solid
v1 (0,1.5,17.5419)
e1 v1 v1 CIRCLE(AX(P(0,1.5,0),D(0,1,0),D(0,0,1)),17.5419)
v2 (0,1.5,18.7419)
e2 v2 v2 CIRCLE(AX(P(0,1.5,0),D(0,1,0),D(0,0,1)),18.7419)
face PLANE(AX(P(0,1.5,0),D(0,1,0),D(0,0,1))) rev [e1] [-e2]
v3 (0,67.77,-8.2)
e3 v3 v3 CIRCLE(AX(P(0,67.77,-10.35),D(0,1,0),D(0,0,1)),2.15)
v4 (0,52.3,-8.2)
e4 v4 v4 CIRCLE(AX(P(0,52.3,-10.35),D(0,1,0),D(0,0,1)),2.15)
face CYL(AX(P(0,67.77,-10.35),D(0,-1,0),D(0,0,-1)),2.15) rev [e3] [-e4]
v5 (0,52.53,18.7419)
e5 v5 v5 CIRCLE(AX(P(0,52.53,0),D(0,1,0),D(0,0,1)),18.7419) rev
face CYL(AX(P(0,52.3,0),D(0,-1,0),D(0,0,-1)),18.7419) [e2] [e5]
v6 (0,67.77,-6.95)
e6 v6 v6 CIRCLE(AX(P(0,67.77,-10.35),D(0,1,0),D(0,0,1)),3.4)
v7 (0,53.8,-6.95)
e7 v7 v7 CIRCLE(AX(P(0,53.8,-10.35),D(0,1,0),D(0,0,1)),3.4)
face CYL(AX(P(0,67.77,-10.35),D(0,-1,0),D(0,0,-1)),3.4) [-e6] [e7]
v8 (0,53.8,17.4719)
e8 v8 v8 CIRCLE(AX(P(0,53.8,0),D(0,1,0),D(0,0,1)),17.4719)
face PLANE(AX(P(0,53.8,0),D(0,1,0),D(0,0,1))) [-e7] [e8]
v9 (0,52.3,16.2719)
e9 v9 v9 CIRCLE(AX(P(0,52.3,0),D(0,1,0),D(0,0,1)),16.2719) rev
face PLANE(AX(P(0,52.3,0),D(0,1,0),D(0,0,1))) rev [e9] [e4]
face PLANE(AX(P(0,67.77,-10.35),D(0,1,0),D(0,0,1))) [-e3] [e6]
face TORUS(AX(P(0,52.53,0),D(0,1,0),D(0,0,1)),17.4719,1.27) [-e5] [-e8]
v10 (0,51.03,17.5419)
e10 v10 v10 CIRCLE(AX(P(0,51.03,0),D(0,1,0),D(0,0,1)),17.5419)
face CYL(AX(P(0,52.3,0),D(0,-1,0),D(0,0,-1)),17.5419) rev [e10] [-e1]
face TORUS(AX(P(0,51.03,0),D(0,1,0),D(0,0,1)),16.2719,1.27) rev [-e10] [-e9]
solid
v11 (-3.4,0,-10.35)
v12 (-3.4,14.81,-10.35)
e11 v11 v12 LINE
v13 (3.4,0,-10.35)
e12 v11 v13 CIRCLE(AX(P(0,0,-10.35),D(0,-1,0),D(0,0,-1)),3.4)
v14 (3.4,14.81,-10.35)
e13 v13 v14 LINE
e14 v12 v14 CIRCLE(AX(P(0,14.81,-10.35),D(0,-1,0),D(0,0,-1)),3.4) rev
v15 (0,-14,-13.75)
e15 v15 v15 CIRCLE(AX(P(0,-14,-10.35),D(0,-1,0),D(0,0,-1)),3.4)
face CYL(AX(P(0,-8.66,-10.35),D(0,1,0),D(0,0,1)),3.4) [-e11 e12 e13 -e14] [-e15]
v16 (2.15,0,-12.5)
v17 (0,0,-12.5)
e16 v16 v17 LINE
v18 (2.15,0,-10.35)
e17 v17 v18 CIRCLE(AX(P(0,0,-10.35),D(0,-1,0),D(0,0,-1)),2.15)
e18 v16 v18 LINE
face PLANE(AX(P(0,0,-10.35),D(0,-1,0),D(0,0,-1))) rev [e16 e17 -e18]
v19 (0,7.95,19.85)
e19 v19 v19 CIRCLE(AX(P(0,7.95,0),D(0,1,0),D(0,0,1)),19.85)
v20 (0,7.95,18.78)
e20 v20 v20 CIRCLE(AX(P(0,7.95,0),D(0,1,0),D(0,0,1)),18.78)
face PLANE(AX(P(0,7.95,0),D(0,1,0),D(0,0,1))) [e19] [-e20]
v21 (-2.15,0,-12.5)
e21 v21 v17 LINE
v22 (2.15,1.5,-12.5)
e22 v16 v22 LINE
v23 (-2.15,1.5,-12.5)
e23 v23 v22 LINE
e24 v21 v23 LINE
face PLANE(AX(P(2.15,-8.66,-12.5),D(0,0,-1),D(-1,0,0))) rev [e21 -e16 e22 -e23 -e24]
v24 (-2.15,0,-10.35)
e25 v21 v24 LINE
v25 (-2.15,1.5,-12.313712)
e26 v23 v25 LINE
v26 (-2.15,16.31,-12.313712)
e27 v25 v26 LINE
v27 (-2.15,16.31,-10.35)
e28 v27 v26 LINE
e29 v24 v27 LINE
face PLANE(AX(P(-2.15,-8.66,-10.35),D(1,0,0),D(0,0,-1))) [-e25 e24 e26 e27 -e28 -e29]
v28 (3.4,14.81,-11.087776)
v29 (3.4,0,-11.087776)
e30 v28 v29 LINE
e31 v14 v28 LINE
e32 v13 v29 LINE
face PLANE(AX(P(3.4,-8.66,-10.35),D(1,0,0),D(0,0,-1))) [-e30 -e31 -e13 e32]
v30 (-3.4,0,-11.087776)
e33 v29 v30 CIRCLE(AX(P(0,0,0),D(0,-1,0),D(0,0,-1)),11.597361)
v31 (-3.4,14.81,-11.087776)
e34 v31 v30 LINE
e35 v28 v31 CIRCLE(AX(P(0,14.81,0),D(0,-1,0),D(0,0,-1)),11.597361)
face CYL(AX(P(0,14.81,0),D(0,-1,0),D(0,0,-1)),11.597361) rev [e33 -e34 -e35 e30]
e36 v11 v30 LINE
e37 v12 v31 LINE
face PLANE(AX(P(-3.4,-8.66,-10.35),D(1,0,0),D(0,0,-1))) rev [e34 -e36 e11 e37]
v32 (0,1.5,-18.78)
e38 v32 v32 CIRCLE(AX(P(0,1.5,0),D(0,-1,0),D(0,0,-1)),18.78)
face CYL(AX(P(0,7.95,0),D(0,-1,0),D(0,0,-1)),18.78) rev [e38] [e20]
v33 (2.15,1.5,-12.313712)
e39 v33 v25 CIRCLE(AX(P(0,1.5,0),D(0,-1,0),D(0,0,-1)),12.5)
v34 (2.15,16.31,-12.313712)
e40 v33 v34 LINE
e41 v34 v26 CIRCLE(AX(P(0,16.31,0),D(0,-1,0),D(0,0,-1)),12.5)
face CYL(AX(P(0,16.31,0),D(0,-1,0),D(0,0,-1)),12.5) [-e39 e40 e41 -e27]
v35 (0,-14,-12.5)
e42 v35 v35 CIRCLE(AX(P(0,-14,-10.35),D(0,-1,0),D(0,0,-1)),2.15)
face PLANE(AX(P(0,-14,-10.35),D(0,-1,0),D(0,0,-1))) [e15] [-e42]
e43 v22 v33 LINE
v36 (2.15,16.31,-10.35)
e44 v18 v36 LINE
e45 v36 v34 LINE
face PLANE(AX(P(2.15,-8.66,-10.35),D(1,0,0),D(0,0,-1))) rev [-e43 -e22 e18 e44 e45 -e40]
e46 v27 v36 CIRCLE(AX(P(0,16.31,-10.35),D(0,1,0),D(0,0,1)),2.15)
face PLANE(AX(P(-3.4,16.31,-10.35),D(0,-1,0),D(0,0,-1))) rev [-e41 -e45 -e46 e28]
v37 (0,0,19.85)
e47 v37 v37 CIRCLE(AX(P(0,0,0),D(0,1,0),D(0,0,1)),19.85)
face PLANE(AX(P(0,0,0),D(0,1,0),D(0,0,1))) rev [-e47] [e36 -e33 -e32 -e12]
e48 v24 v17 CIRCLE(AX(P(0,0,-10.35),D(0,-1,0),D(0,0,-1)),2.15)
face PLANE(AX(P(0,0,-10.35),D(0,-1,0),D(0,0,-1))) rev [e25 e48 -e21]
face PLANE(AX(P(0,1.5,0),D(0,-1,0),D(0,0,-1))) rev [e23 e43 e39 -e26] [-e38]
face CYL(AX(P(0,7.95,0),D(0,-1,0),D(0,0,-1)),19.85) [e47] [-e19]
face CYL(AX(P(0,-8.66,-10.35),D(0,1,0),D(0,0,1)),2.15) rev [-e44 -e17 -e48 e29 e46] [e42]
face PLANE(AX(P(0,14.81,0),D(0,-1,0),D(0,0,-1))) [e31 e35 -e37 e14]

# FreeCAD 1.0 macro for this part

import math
import FreeCAD as App
import Part
import Sketcher

V = App.Vector
Q = App.Units.Quantity


def edges_at(feature, points):
    """Names of the edges that pass closest to the given points."""
    edges = feature.Shape.Edges
    near = lambda p: min(range(len(edges)), key=lambda i: edges[i].distToShape(Part.Vertex(*p))[0])
    return sorted({f"Edge{near(p) + 1}" for p in points})

doc = App.newDocument("Part")
body = doc.addObject("PartDesign::Body", "Body")

sketch1 = body.newObject("Sketcher::SketchObject", "Sketch")
sketch1.AttachmentSupport = (doc.getObject("XZ_Plane"), [""])
sketch1.MapMode = "FlatFace"
sketch1.addGeometry([
    Part.Circle(V(0, 0, 0), V(0, 0, 1), 20),
    Part.Circle(V(0, 0, 0), V(0, 0, 1), 19),
], False)
sketch1.addConstraint([
    Sketcher.Constraint("Coincident", 0, 3, -1, 1),
    Sketcher.Constraint("Coincident", 1, 3, -1, 1),
    Sketcher.Constraint("Diameter", 0, Q("39.7 mm")),
    Sketcher.Constraint("Diameter", 1, Q("37.56 mm")),
])
pad1 = body.newObject("PartDesign::Pad", "Pad")
pad1.Profile = sketch1
pad1.Length = 7.95
pad1.Reversed = True

sketch2 = body.newObject("Sketcher::SketchObject", "Sketch001")
sketch2.AttachmentSupport = (doc.getObject("XZ_Plane"), [""])
sketch2.MapMode = "FlatFace"
sketch2.addGeometry(Part.Circle(V(0, 0, 0), V(0, 0, 1), 19), False)
sketch2.addConstraint([
    Sketcher.Constraint("Coincident", 0, 3, -1, 1),
    Sketcher.Constraint("Diameter", 0, Q("37.56 mm")),
])
pad2 = body.newObject("PartDesign::Pad", "Pad001")
pad2.Profile = sketch2
pad2.Length = 1.5
pad2.Reversed = True
body2 = doc.addObject("PartDesign::Body", "Body001")

sketch3 = body2.newObject("Sketcher::SketchObject", "Sketch002")
sketch3.AttachmentSupport = (doc.getObject("XZ_Plane001"), [""])
sketch3.MapMode = "FlatFace"
sketch3.addGeometry(Part.Circle(V(0, 0, 0), V(0, 0, 1), 12), False)
sketch3.addConstraint([
    Sketcher.Constraint("Coincident", 0, 3, -1, 1),
    Sketcher.Constraint("Diameter", 0, Q("25 mm")),
])
pad3 = body2.newObject("PartDesign::Pad", "Pad002")
pad3.Profile = sketch3
pad3.Length = 16.31
pad3.Reversed = True
body3 = doc.addObject("PartDesign::Body", "Body002")

sketch4 = body3.newObject("Sketcher::SketchObject", "Sketch003")
sketch4.AttachmentSupport = (doc.getObject("XZ_Plane002"), [""])
sketch4.MapMode = "FlatFace"
sketch4.AttachmentOffset = App.Placement(V(0, 0, -16.31), App.Rotation())
sketch4.addGeometry([
    Part.ArcOfCircle(Part.Circle(V(0, -10.3, 0), V(0, 0, 1), 2.1), math.radians(0), math.radians(180)),
    Part.LineSegment(V(2.1, -10.3, 0), V(2.1, -12.5, 0)),
    Part.LineSegment(V(2.1, -12.5, 0), V(-2.1, -12.5, 0)),
    Part.LineSegment(V(-2.1, -12.5, 0), V(-2.1, -10.3, 0)),
], False)
sketch4.addConstraint([
    Sketcher.Constraint("Tangent", 0, 1, 1, 1),
    Sketcher.Constraint("Coincident", 1, 2, 2, 1),
    Sketcher.Constraint("Coincident", 2, 2, 3, 1),
    Sketcher.Constraint("Tangent", 3, 2, 0, 2),
    Sketcher.Constraint("Vertical", 1),
    Sketcher.Constraint("Horizontal", 2),
    Sketcher.Constraint("Vertical", 3),
    Sketcher.Constraint("PointOnObject", 0, 3, -2),
    Sketcher.Constraint("Radius", 0, Q("2.15 mm")),
    Sketcher.Constraint("DistanceY", 1, 2, 1, 1, Q("2.15 mm")),
    Sketcher.Constraint("DistanceY", 1, 2, -1, 1, Q("12.5 mm")),
])
pad4 = body3.newObject("PartDesign::Pad", "Pad003")
pad4.Profile = sketch4
pad4.Length = 16.31
doc.recompute()

body4 = doc.addObject("PartDesign::Body", "Body003")
body4.BaseFeature = body3
boolean = body.newObject("PartDesign::Boolean", "Boolean")
boolean.Type = "Cut"
boolean.addObjects([body4])
doc.recompute()

boolean2 = body2.newObject("PartDesign::Boolean", "Boolean001")
boolean2.Type = "Cut"
boolean2.addObjects([body3])
body5 = doc.addObject("PartDesign::Body", "Body004")

sketch5 = body5.newObject("Sketcher::SketchObject", "Sketch004")
sketch5.AttachmentSupport = (doc.getObject("XZ_Plane004"), [""])
sketch5.MapMode = "FlatFace"
sketch5.addGeometry(Part.Circle(V(0, 0, 0), V(0, 0, 1), 12), False)
sketch5.addConstraint([
    Sketcher.Constraint("Coincident", 0, 3, -1, 1),
    Sketcher.Constraint("Diameter", 0, Q("23.194722 mm")),
])
pad5 = body5.newObject("PartDesign::Pad", "Pad004")
pad5.Profile = sketch5
pad5.Length = 14.81
pad5.Reversed = True
doc.recompute()

body6 = doc.addObject("PartDesign::Body", "Body005")
body6.BaseFeature = body5
boolean3 = body.newObject("PartDesign::Boolean", "Boolean002")
boolean3.Type = "Cut"
boolean3.addObjects([body6])
doc.recompute()

boolean4 = body2.newObject("PartDesign::Boolean", "Boolean003")
boolean4.Type = "Cut"
boolean4.addObjects([body5])
doc.recompute()

boolean5 = body.newObject("PartDesign::Boolean", "Boolean004")
boolean5.Type = "Fuse"
boolean5.addObjects([body2])

sketch6 = body.newObject("Sketcher::SketchObject", "Sketch005")
sketch6.AttachmentSupport = (doc.getObject("XZ_Plane"), [""])
sketch6.MapMode = "FlatFace"
sketch6.AttachmentOffset = App.Placement(V(0, 0, -16.31), App.Rotation())
sketch6.addGeometry([
    Part.ArcOfCircle(Part.Circle(V(0, -10.3, 0), V(0, 0, 1), 3.4), math.radians(0), math.radians(180)),
    Part.LineSegment(V(3.4, -10.3, 0), V(3.4, -13.8, 0)),
    Part.LineSegment(V(3.4, -13.8, 0), V(-3.4, -13.8, 0)),
    Part.LineSegment(V(-3.4, -13.8, 0), V(-3.4, -10.3, 0)),
], False)
sketch6.addConstraint([
    Sketcher.Constraint("Tangent", 0, 1, 1, 1),
    Sketcher.Constraint("Coincident", 1, 2, 2, 1),
    Sketcher.Constraint("Coincident", 2, 2, 3, 1),
    Sketcher.Constraint("Tangent", 3, 2, 0, 2),
    Sketcher.Constraint("Vertical", 1),
    Sketcher.Constraint("Horizontal", 2),
    Sketcher.Constraint("Vertical", 3),
    Sketcher.Constraint("PointOnObject", 0, 3, -2),
    Sketcher.Constraint("Radius", 0, Q("3.4 mm")),
    Sketcher.Constraint("DistanceY", 1, 2, 1, 1, Q("3.4 mm")),
    Sketcher.Constraint("DistanceY", 0, 3, -1, 1, Q("10.35 mm")),
])
pad6 = body.newObject("PartDesign::Pad", "Pad005")
pad6.Profile = sketch6
pad6.Length = 24.97

sketch7 = body.newObject("Sketcher::SketchObject", "Sketch006")
sketch7.AttachmentSupport = (doc.getObject("XZ_Plane"), [""])
sketch7.MapMode = "FlatFace"
sketch7.AttachmentOffset = App.Placement(V(0, 0, -16.31), App.Rotation())
sketch7.addGeometry([
    Part.ArcOfCircle(Part.Circle(V(0, -10.3, 0), V(0, 0, 1), 2.1), math.radians(0), math.radians(180)),
    Part.LineSegment(V(2.1, -10.3, 0), V(2.1, -12.5, 0)),
    Part.LineSegment(V(2.1, -12.5, 0), V(-2.1, -12.5, 0)),
    Part.LineSegment(V(-2.1, -12.5, 0), V(-2.1, -10.3, 0)),
], False)
sketch7.addConstraint([
    Sketcher.Constraint("Tangent", 0, 1, 1, 1),
    Sketcher.Constraint("Coincident", 1, 2, 2, 1),
    Sketcher.Constraint("Coincident", 2, 2, 3, 1),
    Sketcher.Constraint("Tangent", 3, 2, 0, 2),
    Sketcher.Constraint("Vertical", 1),
    Sketcher.Constraint("Horizontal", 2),
    Sketcher.Constraint("Vertical", 3),
    Sketcher.Constraint("PointOnObject", 0, 3, -2),
    Sketcher.Constraint("Radius", 0, Q("2.15 mm")),
    Sketcher.Constraint("DistanceY", 1, 2, 1, 1, Q("2.15 mm")),
    Sketcher.Constraint("DistanceY", 1, 2, -1, 1, Q("12.5 mm")),
])
pocket1 = body.newObject("PartDesign::Pocket", "Pocket")
pocket1.Profile = sketch7
pocket1.Length = 24.97
pocket1.Reversed = True

sketch8 = body.newObject("Sketcher::SketchObject", "Sketch007")
sketch8.AttachmentSupport = (doc.getObject("XZ_Plane"), [""])
sketch8.MapMode = "FlatFace"
sketch8.AttachmentOffset = App.Placement(V(0, 0, -1.5), App.Rotation())
sketch8.addGeometry([
    Part.Circle(V(0, 0, 0), V(0, 0, 1), 15),
    Part.Circle(V(0, 0, 0), V(0, 0, 1), 12),
], False)
sketch8.addConstraint([
    Sketcher.Constraint("Coincident", 0, 3, -1, 1),
    Sketcher.Constraint("Coincident", 1, 3, -1, 1),
    Sketcher.Constraint("Diameter", 1, Q("25 mm")),
    Sketcher.Constraint("Diameter", 0, Q("30.438621 mm")),
])
pocket2 = body.newObject("PartDesign::Pocket", "Pocket001")
pocket2.Profile = sketch8
pocket2.Length = 14.81

sketch9 = body.newObject("Sketcher::SketchObject", "Sketch008")
sketch9.AttachmentSupport = (doc.getObject("XZ_Plane"), [""])
sketch9.MapMode = "FlatFace"
sketch9.addGeometry([
    Part.LineSegment(V(-3.4, -11.1, 0), V(-3.4, -13.8, 0)),
    Part.LineSegment(V(-3.4, -13.8, 0), V(3.4, -13.8, 0)),
    Part.LineSegment(V(3.4, -13.8, 0), V(3.4, -11.1, 0)),
    Part.LineSegment(V(3.4, -11.1, 0), V(-3.4, -11.1, 0)),
], False)
sketch9.addConstraint([
    Sketcher.Constraint("Coincident", 0, 2, 1, 1),
    Sketcher.Constraint("Coincident", 1, 2, 2, 1),
    Sketcher.Constraint("Coincident", 2, 2, 3, 1),
    Sketcher.Constraint("Coincident", 3, 2, 0, 1),
    Sketcher.Constraint("Vertical", 0),
    Sketcher.Constraint("Horizontal", 1),
    Sketcher.Constraint("Vertical", 2),
    Sketcher.Constraint("Horizontal", 3),
    Sketcher.Constraint("DistanceX", 1, 1, 1, 2, Q("6.8 mm")),
    Sketcher.Constraint("DistanceX", 0, 2, -1, 1, Q("3.4 mm")),
    Sketcher.Constraint("DistanceY", 0, 2, -1, 1, Q("13.75 mm")),
    Sketcher.Constraint("DistanceY", 0, 2, 0, 1, Q("2.662224 mm")),
])
pocket3 = body.newObject("PartDesign::Pocket", "Pocket002")
pocket3.Profile = sketch9
pocket3.Length = 16.588
pocket3.Reversed = True

sketch10 = body.newObject("Sketcher::SketchObject", "Sketch009")
sketch10.AttachmentSupport = (doc.getObject("XZ_Plane"), [""])
sketch10.MapMode = "FlatFace"
sketch10.addGeometry([
    Part.Circle(V(0, -10.3, 0), V(0, 0, 1), 3.4),
    Part.Circle(V(0, -10.3, 0), V(0, 0, 1), 2.1),
], False)
sketch10.addConstraint([
    Sketcher.Constraint("Coincident", 1, 3, 0, 3),
    Sketcher.Constraint("PointOnObject", 0, 3, -2),
    Sketcher.Constraint("Diameter", 0, Q("6.8 mm")),
    Sketcher.Constraint("Diameter", 1, Q("4.3 mm")),
    Sketcher.Constraint("DistanceY", 0, 3, -1, 1, Q("10.35 mm")),
])
pad7 = body.newObject("PartDesign::Pad", "Pad006")
pad7.Profile = sketch10
pad7.Length = 14

sketch11 = body.newObject("Sketcher::SketchObject", "Sketch010")
sketch11.AttachmentSupport = (doc.getObject("XZ_Plane"), [""])
sketch11.MapMode = "FlatFace"
sketch11.addGeometry([
    Part.Circle(V(0, -10.3, 0), V(0, 0, 1), 5.6),
    Part.Circle(V(0, -10.3, 0), V(0, 0, 1), 3.4),
], False)
sketch11.addConstraint([
    Sketcher.Constraint("Coincident", 1, 3, 0, 3),
    Sketcher.Constraint("PointOnObject", 0, 3, -2),
    Sketcher.Constraint("Diameter", 1, Q("6.8 mm")),
    Sketcher.Constraint("Diameter", 0, Q("11.236321 mm")),
    Sketcher.Constraint("DistanceY", 0, 3, -1, 1, Q("10.35 mm")),
])
pocket4 = body.newObject("PartDesign::Pocket", "Pocket003")
pocket4.Profile = sketch11
pocket4.Length = 14
pocket4.Reversed = True
body7 = doc.addObject("PartDesign::Body", "Body006")

sketch12 = body7.newObject("Sketcher::SketchObject", "Sketch011")
sketch12.AttachmentSupport = (doc.getObject("XZ_Plane006"), [""])
sketch12.MapMode = "FlatFace"
sketch12.AttachmentOffset = App.Placement(V(0, 0, -1.5), App.Rotation())
sketch12.addGeometry([
    Part.Circle(V(0, 0, 0), V(0, 0, 1), 19),
    Part.Circle(V(0, 0, 0), V(0, 0, 1), 18),
], False)
sketch12.addConstraint([
    Sketcher.Constraint("Coincident", 0, 3, -1, 1),
    Sketcher.Constraint("Coincident", 1, 3, -1, 1),
    Sketcher.Constraint("Diameter", 0, Q("37.4838 mm")),
    Sketcher.Constraint("Diameter", 1, Q("35.0838 mm")),
])
pad8 = body7.newObject("PartDesign::Pad", "Pad007")
pad8.Profile = sketch12
pad8.Length = 50.8
pad8.Reversed = True

sketch13 = body7.newObject("Sketcher::SketchObject", "Sketch012")
sketch13.AttachmentSupport = (doc.getObject("XZ_Plane006"), [""])
sketch13.MapMode = "FlatFace"
sketch13.AttachmentOffset = App.Placement(V(0, 0, -52.3), App.Rotation())
sketch13.addGeometry(Part.Circle(V(0, 0, 0), V(0, 0, 1), 19), False)
sketch13.addConstraint([
    Sketcher.Constraint("Coincident", 0, 3, -1, 1),
    Sketcher.Constraint("Diameter", 0, Q("37.4838 mm")),
])
pad9 = body7.newObject("PartDesign::Pad", "Pad008")
pad9.Profile = sketch13
pad9.Length = 1.5
pad9.Reversed = True

sketch14 = body7.newObject("Sketcher::SketchObject", "Sketch013")
sketch14.AttachmentSupport = (doc.getObject("XZ_Plane006"), [""])
sketch14.MapMode = "FlatFace"
sketch14.AttachmentOffset = App.Placement(V(0, 0, -53.8), App.Rotation())
sketch14.addGeometry([
    Part.Circle(V(0, -10.3, 0), V(0, 0, 1), 3.4),
    Part.Circle(V(0, -10.3, 0), V(0, 0, 1), 2.1),
], False)
sketch14.addConstraint([
    Sketcher.Constraint("Coincident", 1, 3, 0, 3),
    Sketcher.Constraint("PointOnObject", 0, 3, -2),
    Sketcher.Constraint("Diameter", 0, Q("6.8 mm")),
    Sketcher.Constraint("Diameter", 1, Q("4.3 mm")),
    Sketcher.Constraint("DistanceY", 0, 3, -1, 1, Q("10.35 mm")),
])
pad10 = body7.newObject("PartDesign::Pad", "Pad009")
pad10.Profile = sketch14
pad10.Length = 13.97
pad10.Reversed = True

sketch15 = body7.newObject("Sketcher::SketchObject", "Sketch014")
sketch15.AttachmentSupport = (doc.getObject("XZ_Plane006"), [""])
sketch15.MapMode = "FlatFace"
sketch15.AttachmentOffset = App.Placement(V(0, 0, -67.77), App.Rotation())
sketch15.addGeometry(Part.Circle(V(0, -10.3, 0), V(0, 0, 1), 2.1), False)
sketch15.addConstraint([
    Sketcher.Constraint("PointOnObject", 0, 3, -2),
    Sketcher.Constraint("Diameter", 0, Q("4.3 mm")),
    Sketcher.Constraint("DistanceY", 0, 3, -1, 1, Q("10.35 mm")),
])
pocket5 = body7.newObject("PartDesign::Pocket", "Pocket004")
pocket5.Profile = sketch15
pocket5.Length = 30.456
pocket5.Reversed = True
doc.recompute()

fillet = body7.newObject("PartDesign::Fillet", "Fillet")
fillet.Base = (pocket5, edges_at(pocket5, [(-17.542, 52.3, 0)]))
fillet.Radius = 1.27
doc.recompute()

fillet2 = body7.newObject("PartDesign::Fillet", "Fillet001")
fillet2.Base = (fillet, edges_at(fillet, [(-18.742, 53.8, 0)]))
fillet2.Radius = 1.27

doc.recompute()
